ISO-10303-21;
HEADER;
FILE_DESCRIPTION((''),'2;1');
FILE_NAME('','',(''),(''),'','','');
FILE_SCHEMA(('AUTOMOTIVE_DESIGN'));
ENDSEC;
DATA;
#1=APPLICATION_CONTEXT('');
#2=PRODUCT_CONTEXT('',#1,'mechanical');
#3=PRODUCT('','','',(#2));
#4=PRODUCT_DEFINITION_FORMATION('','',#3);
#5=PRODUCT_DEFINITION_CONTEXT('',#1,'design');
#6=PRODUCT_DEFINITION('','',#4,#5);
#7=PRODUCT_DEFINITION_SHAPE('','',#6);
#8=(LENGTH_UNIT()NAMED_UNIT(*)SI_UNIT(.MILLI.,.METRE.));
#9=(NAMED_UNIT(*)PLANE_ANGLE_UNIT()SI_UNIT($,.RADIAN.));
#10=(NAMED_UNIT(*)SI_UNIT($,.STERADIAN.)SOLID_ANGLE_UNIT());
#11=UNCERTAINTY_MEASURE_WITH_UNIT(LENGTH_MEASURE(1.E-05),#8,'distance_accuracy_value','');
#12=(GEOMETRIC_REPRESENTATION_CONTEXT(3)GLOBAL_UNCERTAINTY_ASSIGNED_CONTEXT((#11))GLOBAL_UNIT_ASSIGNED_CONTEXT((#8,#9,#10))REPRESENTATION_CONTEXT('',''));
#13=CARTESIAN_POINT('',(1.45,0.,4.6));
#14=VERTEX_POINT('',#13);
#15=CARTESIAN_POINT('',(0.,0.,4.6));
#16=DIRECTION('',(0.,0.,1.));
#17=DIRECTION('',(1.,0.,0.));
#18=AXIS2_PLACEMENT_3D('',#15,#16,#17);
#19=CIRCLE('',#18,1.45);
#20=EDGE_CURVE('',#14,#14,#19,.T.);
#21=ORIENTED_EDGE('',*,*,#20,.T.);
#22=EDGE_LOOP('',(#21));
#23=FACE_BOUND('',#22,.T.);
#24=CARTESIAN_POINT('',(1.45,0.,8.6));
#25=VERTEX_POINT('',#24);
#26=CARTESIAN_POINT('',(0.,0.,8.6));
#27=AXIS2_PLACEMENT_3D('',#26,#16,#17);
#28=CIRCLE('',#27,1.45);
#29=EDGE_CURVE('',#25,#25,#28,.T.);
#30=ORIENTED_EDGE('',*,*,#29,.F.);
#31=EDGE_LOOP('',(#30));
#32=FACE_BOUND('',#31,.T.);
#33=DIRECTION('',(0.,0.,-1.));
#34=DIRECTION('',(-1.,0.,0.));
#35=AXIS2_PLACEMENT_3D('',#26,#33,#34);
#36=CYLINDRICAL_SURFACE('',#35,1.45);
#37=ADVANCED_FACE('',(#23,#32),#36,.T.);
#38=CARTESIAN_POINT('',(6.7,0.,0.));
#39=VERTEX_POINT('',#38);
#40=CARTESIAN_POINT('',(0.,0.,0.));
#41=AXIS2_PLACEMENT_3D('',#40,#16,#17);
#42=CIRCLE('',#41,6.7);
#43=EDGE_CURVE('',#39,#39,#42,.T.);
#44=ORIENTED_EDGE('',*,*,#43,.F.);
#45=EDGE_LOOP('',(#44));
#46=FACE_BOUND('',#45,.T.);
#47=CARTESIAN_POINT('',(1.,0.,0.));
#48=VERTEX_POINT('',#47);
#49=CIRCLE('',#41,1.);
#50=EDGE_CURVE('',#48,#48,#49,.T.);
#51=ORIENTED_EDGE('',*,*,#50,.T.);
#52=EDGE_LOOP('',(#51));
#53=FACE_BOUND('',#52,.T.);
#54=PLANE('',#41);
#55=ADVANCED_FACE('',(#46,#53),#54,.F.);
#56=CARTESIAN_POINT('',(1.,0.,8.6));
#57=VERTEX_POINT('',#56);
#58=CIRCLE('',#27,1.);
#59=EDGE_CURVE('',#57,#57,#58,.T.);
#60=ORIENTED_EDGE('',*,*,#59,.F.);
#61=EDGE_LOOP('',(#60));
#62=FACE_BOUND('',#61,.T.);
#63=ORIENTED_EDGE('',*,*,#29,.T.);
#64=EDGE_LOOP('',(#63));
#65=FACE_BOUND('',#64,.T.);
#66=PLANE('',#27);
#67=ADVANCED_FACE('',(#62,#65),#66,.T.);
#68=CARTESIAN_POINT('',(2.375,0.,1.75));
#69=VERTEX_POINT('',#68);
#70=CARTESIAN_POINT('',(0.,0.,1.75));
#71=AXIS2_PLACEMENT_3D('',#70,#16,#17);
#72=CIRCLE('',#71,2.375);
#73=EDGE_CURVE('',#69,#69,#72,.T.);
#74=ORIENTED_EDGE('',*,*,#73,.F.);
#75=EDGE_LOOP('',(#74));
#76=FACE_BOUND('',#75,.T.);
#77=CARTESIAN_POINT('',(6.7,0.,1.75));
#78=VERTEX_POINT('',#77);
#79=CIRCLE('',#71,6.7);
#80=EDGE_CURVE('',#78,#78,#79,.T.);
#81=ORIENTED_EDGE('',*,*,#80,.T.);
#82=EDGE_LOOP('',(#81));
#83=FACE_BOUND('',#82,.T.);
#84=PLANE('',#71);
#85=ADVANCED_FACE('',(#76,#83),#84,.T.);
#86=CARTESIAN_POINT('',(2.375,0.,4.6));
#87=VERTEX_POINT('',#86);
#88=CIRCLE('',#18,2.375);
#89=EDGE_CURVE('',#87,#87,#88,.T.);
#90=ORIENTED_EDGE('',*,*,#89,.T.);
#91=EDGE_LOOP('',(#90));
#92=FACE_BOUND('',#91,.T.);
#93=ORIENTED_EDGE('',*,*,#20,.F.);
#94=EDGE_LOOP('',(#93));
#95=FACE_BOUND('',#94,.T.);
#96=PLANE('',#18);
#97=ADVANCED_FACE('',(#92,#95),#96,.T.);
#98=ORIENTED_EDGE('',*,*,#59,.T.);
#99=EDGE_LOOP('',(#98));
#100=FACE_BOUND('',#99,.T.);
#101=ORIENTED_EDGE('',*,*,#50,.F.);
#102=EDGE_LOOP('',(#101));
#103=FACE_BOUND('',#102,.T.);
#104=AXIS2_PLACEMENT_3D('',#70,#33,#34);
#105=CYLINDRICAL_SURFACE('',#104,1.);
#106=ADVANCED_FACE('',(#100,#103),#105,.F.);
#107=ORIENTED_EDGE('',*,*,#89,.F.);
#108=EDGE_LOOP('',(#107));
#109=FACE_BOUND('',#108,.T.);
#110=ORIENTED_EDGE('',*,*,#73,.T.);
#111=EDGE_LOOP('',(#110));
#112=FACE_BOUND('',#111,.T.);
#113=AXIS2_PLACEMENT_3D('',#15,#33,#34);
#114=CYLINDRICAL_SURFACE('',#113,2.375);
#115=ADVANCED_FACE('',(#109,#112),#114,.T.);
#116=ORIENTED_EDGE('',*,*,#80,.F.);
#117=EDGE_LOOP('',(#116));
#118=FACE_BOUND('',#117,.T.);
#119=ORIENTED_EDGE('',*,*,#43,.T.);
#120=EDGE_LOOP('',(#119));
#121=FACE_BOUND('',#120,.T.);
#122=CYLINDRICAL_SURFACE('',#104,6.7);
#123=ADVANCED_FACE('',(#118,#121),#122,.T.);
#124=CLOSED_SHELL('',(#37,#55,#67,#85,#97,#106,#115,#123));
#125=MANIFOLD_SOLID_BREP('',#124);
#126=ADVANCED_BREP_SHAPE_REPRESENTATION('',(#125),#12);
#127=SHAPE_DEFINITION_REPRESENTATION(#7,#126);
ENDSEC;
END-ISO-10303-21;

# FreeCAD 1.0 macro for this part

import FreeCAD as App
import Part
import Sketcher
Q = App.Units.Quantity

doc = App.newDocument("Part")
body = doc.addObject("PartDesign::Body", "Body")

# Sketch on XY plane
sketch1 = body.newObject("Sketcher::SketchObject", "Sketch")
sketch1.AttachmentSupport = (doc.getObject("XY_Plane"), [""])
sketch1.MapMode = "FlatFace"
sketch1.addGeometry([
    Part.Circle(App.Vector(0, 0, 0), App.Vector(0, 0, 1), 6.7),
    Part.Circle(App.Vector(0, 0, 0), App.Vector(0, 0, 1), 1),
], False)
sketch1.addConstraint([
    Sketcher.Constraint("Coincident", 0, 3, -1, 1),
    Sketcher.Constraint("Coincident", 1, 3, -1, 1),
    Sketcher.Constraint("Diameter", 1, Q("2 mm")),
    Sketcher.Constraint("Diameter", 0, Q("13.4 mm")),
])
pad1 = body.newObject("PartDesign::Pad", "Pad")
pad1.Profile = sketch1
pad1.Length = 1.75

# Sketch on XY plane
sketch2 = body.newObject("Sketcher::SketchObject", "Sketch001")
sketch2.AttachmentSupport = (doc.getObject("XY_Plane"), [""])
sketch2.MapMode = "FlatFace"
sketch2.AttachmentOffset = App.Placement(App.Vector(0, 0, 1.75), App.Rotation())
sketch2.addGeometry([
    Part.Circle(App.Vector(0, 0, 0), App.Vector(0, 0, 1), 2.4),
    Part.Circle(App.Vector(0, 0, 0), App.Vector(0, 0, 1), 1),
], False)
sketch2.addConstraint([
    Sketcher.Constraint("Coincident", 0, 3, -1, 1),
    Sketcher.Constraint("Coincident", 1, 3, -1, 1),
    Sketcher.Constraint("Diameter", 1, Q("2 mm")),
    Sketcher.Constraint("Diameter", 0, Q("4.75 mm")),
])
pad2 = body.newObject("PartDesign::Pad", "Pad001")
pad2.Profile = sketch2
pad2.Length = 2.85

# Sketch on XY plane
sketch3 = body.newObject("Sketcher::SketchObject", "Sketch002")
sketch3.AttachmentSupport = (doc.getObject("XY_Plane"), [""])
sketch3.MapMode = "FlatFace"
sketch3.AttachmentOffset = App.Placement(App.Vector(0, 0, 4.6), App.Rotation())
sketch3.addGeometry([
    Part.Circle(App.Vector(0, 0, 0), App.Vector(0, 0, 1), 1.4),
    Part.Circle(App.Vector(0, 0, 0), App.Vector(0, 0, 1), 1),
], False)
sketch3.addConstraint([
    Sketcher.Constraint("Coincident", 0, 3, -1, 1),
    Sketcher.Constraint("Coincident", 1, 3, -1, 1),
    Sketcher.Constraint("Diameter", 1, Q("2 mm")),
    Sketcher.Constraint("Diameter", 0, Q("2.9 mm")),
])
pad3 = body.newObject("PartDesign::Pad", "Pad002")
pad3.Profile = sketch3
pad3.Length = 4

doc.recompute()
